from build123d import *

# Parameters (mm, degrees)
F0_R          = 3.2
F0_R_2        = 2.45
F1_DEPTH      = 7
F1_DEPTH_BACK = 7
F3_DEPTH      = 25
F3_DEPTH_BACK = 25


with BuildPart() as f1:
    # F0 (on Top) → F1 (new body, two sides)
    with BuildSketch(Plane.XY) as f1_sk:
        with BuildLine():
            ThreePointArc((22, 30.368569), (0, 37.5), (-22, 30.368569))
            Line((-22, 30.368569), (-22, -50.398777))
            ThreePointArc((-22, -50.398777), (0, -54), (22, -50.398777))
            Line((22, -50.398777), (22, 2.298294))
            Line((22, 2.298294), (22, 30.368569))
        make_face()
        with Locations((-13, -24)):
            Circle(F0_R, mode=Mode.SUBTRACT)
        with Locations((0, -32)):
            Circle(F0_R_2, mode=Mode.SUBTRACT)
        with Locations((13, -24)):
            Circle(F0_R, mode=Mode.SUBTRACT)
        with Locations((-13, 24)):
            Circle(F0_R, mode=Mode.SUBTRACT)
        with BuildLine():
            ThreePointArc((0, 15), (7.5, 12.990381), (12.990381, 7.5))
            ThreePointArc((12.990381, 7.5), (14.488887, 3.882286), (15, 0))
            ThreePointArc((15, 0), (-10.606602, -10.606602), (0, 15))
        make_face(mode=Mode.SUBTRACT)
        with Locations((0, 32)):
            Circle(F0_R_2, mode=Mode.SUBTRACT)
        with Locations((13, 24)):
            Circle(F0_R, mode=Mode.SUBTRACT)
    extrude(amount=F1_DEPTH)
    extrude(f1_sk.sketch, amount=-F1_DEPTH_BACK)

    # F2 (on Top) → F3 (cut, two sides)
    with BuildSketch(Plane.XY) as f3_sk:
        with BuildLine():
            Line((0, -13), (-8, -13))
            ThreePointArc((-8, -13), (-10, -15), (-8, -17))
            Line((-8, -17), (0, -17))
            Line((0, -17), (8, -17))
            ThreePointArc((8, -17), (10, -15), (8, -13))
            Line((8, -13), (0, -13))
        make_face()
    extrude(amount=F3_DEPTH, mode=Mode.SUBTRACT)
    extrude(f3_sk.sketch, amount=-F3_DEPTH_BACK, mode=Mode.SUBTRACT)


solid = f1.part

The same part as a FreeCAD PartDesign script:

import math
import FreeCAD as App
import Part
import Sketcher
Q = App.Units.Quantity

doc = App.newDocument("Part")
params = doc.addObject("Spreadsheet::Sheet", "Params")
for row, (alias, value) in enumerate([
    ("sketch1_radius", "15 mm"),
    ("sketch1_diameter", "6.4 mm"),
    ("sketch1_diameter2", "4.9 mm"),
    ("sketch1_radius2", "37.499999 mm"),
    ("pad1_length", "7 mm"),
    ("pad1_length2", "7 mm"),
    ("sketch2_radius", "2 mm"),
    ("sketch2_width", "16 mm"),
], start=1):
    params.set(f"A{row}", alias)
    params.set(f"B{row}", "=" + value)
    params.setAlias(f"B{row}", alias)

body = doc.addObject("PartDesign::Body", "Body")

# Sketch on XY plane
sketch1 = body.newObject("Sketcher::SketchObject", "Sketch")
sketch1.AttachmentSupport = (doc.getObject("XY_Plane"), [""])
sketch1.MapMode = "FlatFace"
sketch1.addGeometry([
    Part.ArcOfCircle(Part.Circle(App.Vector(0, 0, 0), App.Vector(0, 0, 1), 37.5), math.radians(54), math.radians(126)),  # 0
    Part.LineSegment(App.Vector(-22, 30.4, 0), App.Vector(-22, -50.4, 0)),  # 1
    Part.ArcOfCircle(Part.Circle(App.Vector(0, 15, 0), App.Vector(0, 0, 1), 69), math.radians(-109), math.radians(-71)),  # 2
    Part.LineSegment(App.Vector(22, -50.4, 0), App.Vector(22, 30.4, 0)),  # 3
    Part.Circle(App.Vector(-13, -24, 0), App.Vector(0, 0, 1), 3.2),  # 4
    Part.ArcOfCircle(Part.Circle(App.Vector(0, 0, 0), App.Vector(0, 0, 1), 15), math.radians(90), math.radians(360)),  # 5
    Part.ArcOfCircle(Part.Circle(App.Vector(0, 0, 0), App.Vector(0, 0, 1), 15), math.radians(30), math.radians(90)),  # 6
    Part.ArcOfCircle(Part.Circle(App.Vector(0, 0, 0), App.Vector(0, 0, 1), 15), math.radians(0), math.radians(30)),  # 7
    Part.Circle(App.Vector(0, -32, 0), App.Vector(0, 0, 1), 2.5),  # 8
    Part.Circle(App.Vector(13, -24, 0), App.Vector(0, 0, 1), 3.2),  # 9
    Part.Circle(App.Vector(-13, 24, 0), App.Vector(0, 0, 1), 3.2),  # 10
    Part.Circle(App.Vector(0, 32, 0), App.Vector(0, 0, 1), 2.5),  # 11
    Part.Circle(App.Vector(13, 24, 0), App.Vector(0, 0, 1), 3.2),  # 12
], False)
sketch1.addConstraint([
    Sketcher.Constraint("Coincident", 0, 2, 1, 1),
    Sketcher.Constraint("Coincident", 1, 2, 2, 1),
    Sketcher.Constraint("Coincident", 2, 2, 3, 1),
    Sketcher.Constraint("Coincident", 3, 2, 0, 1),
    Sketcher.Constraint("Tangent", 5, 1, 6, 2),
    Sketcher.Constraint("Tangent", 6, 1, 7, 2),
    Sketcher.Constraint("Tangent", 7, 1, 5, 2),
    Sketcher.Constraint("Vertical", 1),
    Sketcher.Constraint("Vertical", 3),
    Sketcher.Constraint("Coincident", 0, 3, -1, 1),
    Sketcher.Constraint("Coincident", 5, 3, -1, 1),
    Sketcher.Constraint("Coincident", 5, 1, 2, 3),
    Sketcher.Constraint("Equal", 4, 9),
    Sketcher.Constraint("Equal", 9, 10),
    Sketcher.Constraint("Equal", 8, 11),
    Sketcher.Constraint("Equal", 10, 12),
    Sketcher.Constraint("Symmetric", 9, 3, 10, 3, -1, 1),
    Sketcher.Constraint("Symmetric", 8, 3, 11, 3, -1, 1),
    Sketcher.Constraint("Symmetric", 4, 3, 12, 3, -1, 1),
    Sketcher.Constraint("Symmetric", 4, 3, 9, 3, -2),
    Sketcher.Constraint("Symmetric", 1, 2, 2, 2, -2),
    Sketcher.Constraint("PointOnObject", 8, 3, -2),
    Sketcher.Constraint("PointOnObject", 7, 1, -1),
    Sketcher.Constraint("Radius", 5, Q("15 mm")),
    Sketcher.Constraint("Diameter", 4, Q("6.4 mm")),
    Sketcher.Constraint("Diameter", 8, Q("4.9 mm")),
    Sketcher.Constraint("Radius", 0, Q("37.499999 mm")),
    Sketcher.Constraint("DistanceX", 4, 3, -1, 1, Q("13 mm")),
    Sketcher.Constraint("DistanceY", 4, 3, -1, 1, Q("24 mm")),
    Sketcher.Constraint("DistanceY", 8, 3, -1, 1, Q("32 mm")),
    Sketcher.Constraint("DistanceX", 0, 2, -1, 1, Q("22 mm")),
    Sketcher.Constraint("DistanceY", -1, 1, 6, 1, Q("7.5 mm")),
    Sketcher.Constraint("Radius", 2, Q("69.000005 mm")),
])
sketch1.setExpression("Constraints[23]", "Params.sketch1_radius")
sketch1.setExpression("Constraints[24]", "Params.sketch1_diameter")
sketch1.setExpression("Constraints[25]", "Params.sketch1_diameter2")
sketch1.setExpression("Constraints[26]", "Params.sketch1_radius2")
pad1 = body.newObject("PartDesign::Pad", "Pad")
pad1.Profile = sketch1
pad1.Type = "TwoLengths"
pad1.setExpression("Length", "Params.pad1_length")
pad1.setExpression("Length2", "Params.pad1_length2")

# Sketch on XY plane
sketch2 = body.newObject("Sketcher::SketchObject", "Sketch001")
sketch2.AttachmentSupport = (doc.getObject("XY_Plane"), [""])
sketch2.MapMode = "FlatFace"
sketch2.addGeometry([
    Part.ArcOfCircle(Part.Circle(App.Vector(-8, -15, 0), App.Vector(0, 0, 1), 2), math.radians(90), math.radians(270)),
    Part.LineSegment(App.Vector(-8, -17, 0), App.Vector(8, -17, 0)),
    Part.ArcOfCircle(Part.Circle(App.Vector(8, -15, 0), App.Vector(0, 0, 1), 2), math.radians(-90), math.radians(90)),
    Part.LineSegment(App.Vector(8, -13, 0), App.Vector(-8, -13, 0)),
], False)
sketch2.addConstraint([
    Sketcher.Constraint("Tangent", 0, 2, 1, 1),
    Sketcher.Constraint("Tangent", 1, 2, 2, 1),
    Sketcher.Constraint("Tangent", 2, 2, 3, 1),
    Sketcher.Constraint("Tangent", 3, 2, 0, 1),
    Sketcher.Constraint("Horizontal", 1),
    Sketcher.Constraint("Horizontal", 3),
    Sketcher.Constraint("Radius", 0, Q("2 mm")),
    Sketcher.Constraint("DistanceX", 1, 1, 1, 2, Q("16 mm")),
    Sketcher.Constraint("DistanceX", 0, 3, -1, 1, Q("8 mm")),
    Sketcher.Constraint("DistanceY", 0, 3, -1, 1, Q("15 mm")),
])
sketch2.setExpression("Constraints[6]", "Params.sketch2_radius")
sketch2.setExpression("Constraints[7]", "Params.sketch2_width")
pocket1 = body.newObject("PartDesign::Pocket", "Pocket")
pocket1.Profile = sketch2
pocket1.Type = "ThroughAll"
pocket1.Midplane = True

doc.recompute()
